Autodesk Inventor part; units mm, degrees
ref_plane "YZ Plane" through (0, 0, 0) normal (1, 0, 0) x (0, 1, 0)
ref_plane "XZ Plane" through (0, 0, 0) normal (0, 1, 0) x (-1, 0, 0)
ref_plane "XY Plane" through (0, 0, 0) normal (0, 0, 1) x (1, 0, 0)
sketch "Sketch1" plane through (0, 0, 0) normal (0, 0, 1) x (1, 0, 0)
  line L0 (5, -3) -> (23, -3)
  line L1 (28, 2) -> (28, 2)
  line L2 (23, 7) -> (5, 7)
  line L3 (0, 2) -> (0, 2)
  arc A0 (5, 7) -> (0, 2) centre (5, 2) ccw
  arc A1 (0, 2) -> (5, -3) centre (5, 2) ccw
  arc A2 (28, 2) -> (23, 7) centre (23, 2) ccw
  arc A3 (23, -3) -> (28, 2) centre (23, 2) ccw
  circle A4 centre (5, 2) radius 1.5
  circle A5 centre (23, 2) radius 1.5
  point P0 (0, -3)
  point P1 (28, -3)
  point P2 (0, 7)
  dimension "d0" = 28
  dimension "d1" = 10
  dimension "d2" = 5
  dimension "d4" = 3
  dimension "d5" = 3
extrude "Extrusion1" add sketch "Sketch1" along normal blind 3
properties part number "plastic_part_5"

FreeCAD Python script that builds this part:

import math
import FreeCAD as App
import Part
import Sketcher

V = App.Vector

doc = App.newDocument("Part")
body = doc.addObject("PartDesign::Body", "Body")

# Sketch on XY plane
sketch1 = doc.addObject("Sketcher::SketchObject", "Sketch")
body.addObject(sketch1)
sketch1.AttachmentSupport = (doc.XY_Plane, [""])
sketch1.MapMode = "FlatFace"
sketch1.addGeometry(Part.ArcOfCircle(Part.Circle(V(5, 2, 0), V(0, 0, 1), 5), math.radians(90), math.radians(270)), False)
sketch1.addGeometry(Part.LineSegment(V(5, -3, 0), V(23, -3, 0)), False)
sketch1.addGeometry(Part.ArcOfCircle(Part.Circle(V(23, 2, 0), V(0, 0, 1), 5), math.radians(-90), math.radians(90)), False)
sketch1.addGeometry(Part.LineSegment(V(23, 7, 0), V(5, 7, 0)), False)
sketch1.addGeometry(Part.Circle(V(5, 2, 0), V(0, 0, 1), 1.5), False)
sketch1.addGeometry(Part.Circle(V(23, 2, 0), V(0, 0, 1), 1.5), False)
sketch1.addConstraint(Sketcher.Constraint("Tangent", 0, 2, 1, 1))
sketch1.addConstraint(Sketcher.Constraint("Tangent", 1, 2, 2, 1))
sketch1.addConstraint(Sketcher.Constraint("Tangent", 2, 2, 3, 1))
sketch1.addConstraint(Sketcher.Constraint("Tangent", 3, 2, 0, 1))
sketch1.addConstraint(Sketcher.Constraint("Horizontal", 1))
sketch1.addConstraint(Sketcher.Constraint("Horizontal", 3))
sketch1.addConstraint(Sketcher.Constraint("Coincident", 4, 3, 0, 3))
sketch1.addConstraint(Sketcher.Constraint("Coincident", 5, 3, 2, 3))
sketch1.addConstraint(Sketcher.Constraint("Equal", 4, 5))
sketch1.addConstraint(Sketcher.Constraint("Diameter", 4, 3.0))
sketch1.addConstraint(Sketcher.Constraint("Radius", 0, 5.0))
sketch1.addConstraint(Sketcher.Constraint("DistanceX", -1, 1, 0, 3, 5.0))
sketch1.addConstraint(Sketcher.Constraint("DistanceY", 0, 2, -1, 1, 3.0))
sketch1.addConstraint(Sketcher.Constraint("DistanceX", 1, 1, 1, 2, 18.0))
pad1 = doc.addObject("PartDesign::Pad", "Pad")
body.addObject(pad1)
pad1.Profile = sketch1
pad1.Length = 3

doc.recompute()
